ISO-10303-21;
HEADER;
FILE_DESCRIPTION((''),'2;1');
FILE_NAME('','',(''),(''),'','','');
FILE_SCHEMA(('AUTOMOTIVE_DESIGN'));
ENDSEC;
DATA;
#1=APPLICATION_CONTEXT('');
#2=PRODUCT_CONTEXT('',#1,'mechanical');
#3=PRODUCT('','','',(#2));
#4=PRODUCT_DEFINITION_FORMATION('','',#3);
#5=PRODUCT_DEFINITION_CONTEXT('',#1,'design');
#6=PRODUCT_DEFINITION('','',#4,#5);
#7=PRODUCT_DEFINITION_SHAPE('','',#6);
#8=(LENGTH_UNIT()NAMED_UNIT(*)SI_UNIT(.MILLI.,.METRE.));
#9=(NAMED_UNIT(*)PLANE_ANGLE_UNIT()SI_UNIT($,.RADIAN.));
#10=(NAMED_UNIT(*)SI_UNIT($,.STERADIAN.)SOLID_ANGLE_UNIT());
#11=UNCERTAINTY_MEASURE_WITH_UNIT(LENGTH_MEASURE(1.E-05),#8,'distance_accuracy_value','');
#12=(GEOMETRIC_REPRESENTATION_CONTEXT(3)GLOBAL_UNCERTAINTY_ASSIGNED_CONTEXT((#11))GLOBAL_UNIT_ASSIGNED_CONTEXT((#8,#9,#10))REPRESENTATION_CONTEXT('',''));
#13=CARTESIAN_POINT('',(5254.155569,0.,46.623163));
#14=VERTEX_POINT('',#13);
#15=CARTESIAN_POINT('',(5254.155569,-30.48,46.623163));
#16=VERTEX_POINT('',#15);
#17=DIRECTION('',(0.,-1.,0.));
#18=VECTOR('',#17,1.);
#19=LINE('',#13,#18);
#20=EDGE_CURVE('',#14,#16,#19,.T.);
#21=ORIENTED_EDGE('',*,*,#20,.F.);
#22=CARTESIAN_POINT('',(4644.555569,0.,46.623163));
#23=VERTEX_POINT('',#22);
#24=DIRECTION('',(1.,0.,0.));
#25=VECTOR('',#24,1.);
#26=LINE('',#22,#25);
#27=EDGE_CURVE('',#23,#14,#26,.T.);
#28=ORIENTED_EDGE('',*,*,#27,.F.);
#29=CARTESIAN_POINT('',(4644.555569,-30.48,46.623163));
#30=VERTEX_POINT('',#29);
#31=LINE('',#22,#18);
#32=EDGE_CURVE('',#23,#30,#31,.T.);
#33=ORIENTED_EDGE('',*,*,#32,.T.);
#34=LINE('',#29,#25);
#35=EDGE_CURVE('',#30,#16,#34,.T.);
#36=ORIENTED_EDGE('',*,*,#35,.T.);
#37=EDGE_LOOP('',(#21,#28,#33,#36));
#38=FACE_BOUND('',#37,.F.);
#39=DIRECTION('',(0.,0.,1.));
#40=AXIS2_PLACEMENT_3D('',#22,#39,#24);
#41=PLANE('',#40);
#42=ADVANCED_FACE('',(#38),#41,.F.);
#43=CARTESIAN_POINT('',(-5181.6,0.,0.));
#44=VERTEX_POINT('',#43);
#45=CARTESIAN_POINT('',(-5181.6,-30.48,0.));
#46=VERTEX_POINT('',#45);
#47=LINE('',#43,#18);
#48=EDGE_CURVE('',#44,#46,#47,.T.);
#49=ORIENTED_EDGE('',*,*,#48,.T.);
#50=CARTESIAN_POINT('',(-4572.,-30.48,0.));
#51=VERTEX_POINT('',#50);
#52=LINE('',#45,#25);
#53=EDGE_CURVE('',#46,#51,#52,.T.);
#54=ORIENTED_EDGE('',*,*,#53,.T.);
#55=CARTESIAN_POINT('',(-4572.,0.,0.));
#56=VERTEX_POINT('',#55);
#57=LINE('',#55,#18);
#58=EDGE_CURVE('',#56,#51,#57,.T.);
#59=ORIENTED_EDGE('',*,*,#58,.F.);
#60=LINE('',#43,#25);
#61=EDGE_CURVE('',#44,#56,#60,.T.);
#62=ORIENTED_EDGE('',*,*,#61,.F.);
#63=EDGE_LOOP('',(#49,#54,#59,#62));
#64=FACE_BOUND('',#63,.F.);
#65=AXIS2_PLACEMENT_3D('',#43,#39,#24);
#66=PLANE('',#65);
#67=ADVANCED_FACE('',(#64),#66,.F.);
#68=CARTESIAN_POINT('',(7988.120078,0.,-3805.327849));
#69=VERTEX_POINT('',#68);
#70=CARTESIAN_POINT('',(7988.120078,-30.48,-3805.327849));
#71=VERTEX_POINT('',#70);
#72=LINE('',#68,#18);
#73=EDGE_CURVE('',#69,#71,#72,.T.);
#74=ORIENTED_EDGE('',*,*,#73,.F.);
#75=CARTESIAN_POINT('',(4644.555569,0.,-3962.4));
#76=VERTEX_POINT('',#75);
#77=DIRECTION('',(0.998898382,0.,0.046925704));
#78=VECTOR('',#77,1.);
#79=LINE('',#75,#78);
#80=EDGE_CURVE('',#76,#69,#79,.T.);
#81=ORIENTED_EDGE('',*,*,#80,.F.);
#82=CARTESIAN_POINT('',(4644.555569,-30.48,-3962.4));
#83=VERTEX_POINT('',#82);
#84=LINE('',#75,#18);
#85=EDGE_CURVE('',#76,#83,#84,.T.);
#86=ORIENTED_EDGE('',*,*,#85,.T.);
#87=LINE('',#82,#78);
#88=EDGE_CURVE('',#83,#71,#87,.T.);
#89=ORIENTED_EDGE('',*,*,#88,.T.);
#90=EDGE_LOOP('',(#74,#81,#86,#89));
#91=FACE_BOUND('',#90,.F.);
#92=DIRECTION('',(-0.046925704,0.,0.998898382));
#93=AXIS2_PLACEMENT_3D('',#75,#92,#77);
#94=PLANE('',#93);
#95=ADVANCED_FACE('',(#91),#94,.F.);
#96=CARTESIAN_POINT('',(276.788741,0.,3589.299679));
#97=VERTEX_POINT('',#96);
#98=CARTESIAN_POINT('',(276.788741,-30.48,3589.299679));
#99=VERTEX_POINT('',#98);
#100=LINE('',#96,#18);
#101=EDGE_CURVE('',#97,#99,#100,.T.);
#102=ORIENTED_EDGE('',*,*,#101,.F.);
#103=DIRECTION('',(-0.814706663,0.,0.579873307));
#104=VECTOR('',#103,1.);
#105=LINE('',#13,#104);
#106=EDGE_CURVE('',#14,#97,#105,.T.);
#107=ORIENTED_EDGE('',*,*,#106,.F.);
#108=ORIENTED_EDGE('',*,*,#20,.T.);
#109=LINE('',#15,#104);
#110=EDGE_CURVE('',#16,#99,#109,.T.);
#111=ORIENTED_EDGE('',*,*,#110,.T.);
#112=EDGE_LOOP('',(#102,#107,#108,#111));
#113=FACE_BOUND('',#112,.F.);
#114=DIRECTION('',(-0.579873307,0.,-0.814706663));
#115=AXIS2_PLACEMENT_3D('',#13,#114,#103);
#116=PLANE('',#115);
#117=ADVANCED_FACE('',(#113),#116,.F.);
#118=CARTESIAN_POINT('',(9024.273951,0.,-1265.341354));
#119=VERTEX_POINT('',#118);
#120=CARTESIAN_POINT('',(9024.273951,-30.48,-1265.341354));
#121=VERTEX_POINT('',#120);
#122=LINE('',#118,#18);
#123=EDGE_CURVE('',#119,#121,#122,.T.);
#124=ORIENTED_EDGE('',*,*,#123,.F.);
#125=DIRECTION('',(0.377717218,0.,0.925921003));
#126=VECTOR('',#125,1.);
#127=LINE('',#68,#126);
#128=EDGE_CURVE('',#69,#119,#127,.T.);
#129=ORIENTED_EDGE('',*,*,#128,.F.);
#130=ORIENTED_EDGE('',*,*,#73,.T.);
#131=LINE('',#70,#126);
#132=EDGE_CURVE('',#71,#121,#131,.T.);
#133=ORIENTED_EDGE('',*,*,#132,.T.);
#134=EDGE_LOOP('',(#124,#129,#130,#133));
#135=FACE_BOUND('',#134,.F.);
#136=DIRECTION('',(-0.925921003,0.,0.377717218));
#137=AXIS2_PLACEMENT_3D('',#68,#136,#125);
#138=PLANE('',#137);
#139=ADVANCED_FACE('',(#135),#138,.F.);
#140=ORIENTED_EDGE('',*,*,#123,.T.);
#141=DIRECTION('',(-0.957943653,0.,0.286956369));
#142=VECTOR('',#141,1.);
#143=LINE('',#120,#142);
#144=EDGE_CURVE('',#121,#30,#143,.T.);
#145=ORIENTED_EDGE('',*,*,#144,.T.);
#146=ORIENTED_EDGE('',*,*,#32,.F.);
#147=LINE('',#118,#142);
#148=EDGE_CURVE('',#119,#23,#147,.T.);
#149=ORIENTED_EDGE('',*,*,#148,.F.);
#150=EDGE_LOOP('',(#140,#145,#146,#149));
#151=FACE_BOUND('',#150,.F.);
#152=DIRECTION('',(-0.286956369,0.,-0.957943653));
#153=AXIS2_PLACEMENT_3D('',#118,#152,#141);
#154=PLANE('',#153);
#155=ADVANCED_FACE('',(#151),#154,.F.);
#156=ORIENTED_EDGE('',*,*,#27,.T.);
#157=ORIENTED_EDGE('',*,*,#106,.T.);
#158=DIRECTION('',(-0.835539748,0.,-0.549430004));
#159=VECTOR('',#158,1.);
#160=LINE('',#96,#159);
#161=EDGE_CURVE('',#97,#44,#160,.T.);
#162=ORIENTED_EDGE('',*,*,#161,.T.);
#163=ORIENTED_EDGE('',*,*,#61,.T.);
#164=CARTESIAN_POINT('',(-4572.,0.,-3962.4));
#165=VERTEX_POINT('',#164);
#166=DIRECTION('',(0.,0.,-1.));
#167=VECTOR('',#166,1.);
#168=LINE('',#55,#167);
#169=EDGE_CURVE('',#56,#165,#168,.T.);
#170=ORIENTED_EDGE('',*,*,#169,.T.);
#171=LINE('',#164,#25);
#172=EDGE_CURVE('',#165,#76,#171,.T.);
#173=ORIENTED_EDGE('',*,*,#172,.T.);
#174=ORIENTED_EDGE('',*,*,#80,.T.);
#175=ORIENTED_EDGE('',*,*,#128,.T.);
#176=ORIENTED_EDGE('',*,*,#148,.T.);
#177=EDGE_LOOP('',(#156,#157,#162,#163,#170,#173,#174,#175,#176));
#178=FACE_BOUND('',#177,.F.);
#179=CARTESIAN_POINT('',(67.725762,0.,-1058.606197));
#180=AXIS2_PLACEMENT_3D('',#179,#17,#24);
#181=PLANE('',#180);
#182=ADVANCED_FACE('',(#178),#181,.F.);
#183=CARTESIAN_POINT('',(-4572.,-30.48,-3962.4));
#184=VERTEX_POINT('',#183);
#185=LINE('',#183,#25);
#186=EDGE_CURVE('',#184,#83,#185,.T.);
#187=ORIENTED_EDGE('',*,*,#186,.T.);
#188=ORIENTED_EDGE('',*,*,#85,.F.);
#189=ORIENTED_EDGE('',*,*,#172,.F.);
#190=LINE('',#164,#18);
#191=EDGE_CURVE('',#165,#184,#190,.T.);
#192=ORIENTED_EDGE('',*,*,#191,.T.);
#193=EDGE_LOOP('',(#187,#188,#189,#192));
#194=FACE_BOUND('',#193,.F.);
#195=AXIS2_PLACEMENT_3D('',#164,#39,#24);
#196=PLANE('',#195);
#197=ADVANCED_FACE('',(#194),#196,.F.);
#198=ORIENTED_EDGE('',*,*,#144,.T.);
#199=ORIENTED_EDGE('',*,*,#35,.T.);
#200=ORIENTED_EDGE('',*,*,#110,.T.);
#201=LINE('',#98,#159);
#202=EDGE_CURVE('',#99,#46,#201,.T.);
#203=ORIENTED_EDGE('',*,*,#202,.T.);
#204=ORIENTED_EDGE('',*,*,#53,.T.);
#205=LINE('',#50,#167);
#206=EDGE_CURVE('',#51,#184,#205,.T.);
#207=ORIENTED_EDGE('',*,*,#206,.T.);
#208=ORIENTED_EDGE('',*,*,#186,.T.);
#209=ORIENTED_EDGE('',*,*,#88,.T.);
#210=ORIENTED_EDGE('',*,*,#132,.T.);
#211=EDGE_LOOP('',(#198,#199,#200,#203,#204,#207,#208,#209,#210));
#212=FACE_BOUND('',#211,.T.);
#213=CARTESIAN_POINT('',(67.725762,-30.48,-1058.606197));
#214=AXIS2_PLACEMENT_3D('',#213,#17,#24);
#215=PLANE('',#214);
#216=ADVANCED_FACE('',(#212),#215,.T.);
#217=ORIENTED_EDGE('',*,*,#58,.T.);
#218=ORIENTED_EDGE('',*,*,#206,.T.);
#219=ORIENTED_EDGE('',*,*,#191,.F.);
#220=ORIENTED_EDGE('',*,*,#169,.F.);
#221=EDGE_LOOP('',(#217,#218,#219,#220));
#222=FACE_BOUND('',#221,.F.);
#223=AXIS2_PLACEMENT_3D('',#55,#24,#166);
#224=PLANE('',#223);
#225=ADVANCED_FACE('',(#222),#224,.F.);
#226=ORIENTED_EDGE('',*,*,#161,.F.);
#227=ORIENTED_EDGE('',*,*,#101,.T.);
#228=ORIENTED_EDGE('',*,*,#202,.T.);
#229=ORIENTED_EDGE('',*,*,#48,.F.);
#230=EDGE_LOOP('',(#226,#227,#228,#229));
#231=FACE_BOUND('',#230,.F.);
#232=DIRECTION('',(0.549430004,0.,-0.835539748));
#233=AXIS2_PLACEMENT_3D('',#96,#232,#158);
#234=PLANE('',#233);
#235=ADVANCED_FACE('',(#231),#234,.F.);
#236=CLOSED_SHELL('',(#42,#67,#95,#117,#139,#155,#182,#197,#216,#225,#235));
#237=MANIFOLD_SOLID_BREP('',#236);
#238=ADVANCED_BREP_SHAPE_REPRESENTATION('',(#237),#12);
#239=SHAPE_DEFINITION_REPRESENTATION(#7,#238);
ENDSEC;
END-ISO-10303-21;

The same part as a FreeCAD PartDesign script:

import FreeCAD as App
import Part
import Sketcher

V = App.Vector
Q = App.Units.Quantity


def add_polygon(sketch, points):
    """Adds a closed chain of lines whose ends are joined by coincident constraints."""
    first, n = sketch.GeometryCount, len(points)
    for a, b in zip(points, points[1:] + points[:1]):
        sketch.addGeometry(Part.LineSegment(App.Vector(*a, 0), App.Vector(*b, 0)), False)
    for i in range(n):
        sketch.addConstraint(Sketcher.Constraint("Coincident", first + i, 2, first + (i + 1) % n, 1))

doc = App.newDocument("Part")
body = doc.addObject("PartDesign::Body", "Body")

# Sketch on XZ plane
sketch1 = doc.addObject("Sketcher::SketchObject", "Sketch")
body.addObject(sketch1)
sketch1.AttachmentSupport = (doc.XZ_Plane, [""])
sketch1.MapMode = "FlatFace"
add_polygon(sketch1, [(-4572, 0), (-4572, -3962), (4645, -3962), (7988, -3805), (9024, -1265), (4645, 47), (5254, 47), (277, 3589), (-5182, 0)])  # lines 0-8
sketch1.addConstraint([
    Sketcher.Constraint("Vertical", 0),
    Sketcher.Constraint("Horizontal", 1),
    Sketcher.Constraint("Horizontal", 5),
    Sketcher.Constraint("Horizontal", 8),
    Sketcher.Constraint("PointOnObject", 7, 2, -1),
    Sketcher.Constraint("Vertical", 1, 2, 4, 2),
    Sketcher.Constraint("Equal", 5, 8),
    Sketcher.Constraint("DistanceX", 5, 1, 5, 2, Q("24 in")),
    Sketcher.Constraint("DistanceY", 0, 2, 0, 1, Q("156 in")),
    Sketcher.Constraint("Distance", 3, Q("108 in")),
    Sketcher.Constraint("Distance", 4, Q("180 in")),
    Sketcher.Constraint("DistanceX", 0, 2, -1, 1, Q("180 in")),
    Sketcher.Constraint("Distance", 2, Q("3347.251901 mm")),
    Sketcher.Constraint("DistanceX", 1, 1, 1, 2, Q("9216.555569 mm")),
    Sketcher.Constraint("Distance", 6, Q("6109.397469 mm")),
    Sketcher.Constraint("Distance", 7, Q("6532.769691 mm")),
    Sketcher.Constraint("DistanceX", -1, 1, 2, 2, Q("7988.120078 mm")),
    Sketcher.Constraint("DistanceX", -1, 1, 3, 2, Q("9024.273951 mm")),
])
pad1 = doc.addObject("PartDesign::Pad", "Pad")
body.addObject(pad1)
pad1.Profile = sketch1
pad1.Length = Q("1.2 in")

doc.recompute()
